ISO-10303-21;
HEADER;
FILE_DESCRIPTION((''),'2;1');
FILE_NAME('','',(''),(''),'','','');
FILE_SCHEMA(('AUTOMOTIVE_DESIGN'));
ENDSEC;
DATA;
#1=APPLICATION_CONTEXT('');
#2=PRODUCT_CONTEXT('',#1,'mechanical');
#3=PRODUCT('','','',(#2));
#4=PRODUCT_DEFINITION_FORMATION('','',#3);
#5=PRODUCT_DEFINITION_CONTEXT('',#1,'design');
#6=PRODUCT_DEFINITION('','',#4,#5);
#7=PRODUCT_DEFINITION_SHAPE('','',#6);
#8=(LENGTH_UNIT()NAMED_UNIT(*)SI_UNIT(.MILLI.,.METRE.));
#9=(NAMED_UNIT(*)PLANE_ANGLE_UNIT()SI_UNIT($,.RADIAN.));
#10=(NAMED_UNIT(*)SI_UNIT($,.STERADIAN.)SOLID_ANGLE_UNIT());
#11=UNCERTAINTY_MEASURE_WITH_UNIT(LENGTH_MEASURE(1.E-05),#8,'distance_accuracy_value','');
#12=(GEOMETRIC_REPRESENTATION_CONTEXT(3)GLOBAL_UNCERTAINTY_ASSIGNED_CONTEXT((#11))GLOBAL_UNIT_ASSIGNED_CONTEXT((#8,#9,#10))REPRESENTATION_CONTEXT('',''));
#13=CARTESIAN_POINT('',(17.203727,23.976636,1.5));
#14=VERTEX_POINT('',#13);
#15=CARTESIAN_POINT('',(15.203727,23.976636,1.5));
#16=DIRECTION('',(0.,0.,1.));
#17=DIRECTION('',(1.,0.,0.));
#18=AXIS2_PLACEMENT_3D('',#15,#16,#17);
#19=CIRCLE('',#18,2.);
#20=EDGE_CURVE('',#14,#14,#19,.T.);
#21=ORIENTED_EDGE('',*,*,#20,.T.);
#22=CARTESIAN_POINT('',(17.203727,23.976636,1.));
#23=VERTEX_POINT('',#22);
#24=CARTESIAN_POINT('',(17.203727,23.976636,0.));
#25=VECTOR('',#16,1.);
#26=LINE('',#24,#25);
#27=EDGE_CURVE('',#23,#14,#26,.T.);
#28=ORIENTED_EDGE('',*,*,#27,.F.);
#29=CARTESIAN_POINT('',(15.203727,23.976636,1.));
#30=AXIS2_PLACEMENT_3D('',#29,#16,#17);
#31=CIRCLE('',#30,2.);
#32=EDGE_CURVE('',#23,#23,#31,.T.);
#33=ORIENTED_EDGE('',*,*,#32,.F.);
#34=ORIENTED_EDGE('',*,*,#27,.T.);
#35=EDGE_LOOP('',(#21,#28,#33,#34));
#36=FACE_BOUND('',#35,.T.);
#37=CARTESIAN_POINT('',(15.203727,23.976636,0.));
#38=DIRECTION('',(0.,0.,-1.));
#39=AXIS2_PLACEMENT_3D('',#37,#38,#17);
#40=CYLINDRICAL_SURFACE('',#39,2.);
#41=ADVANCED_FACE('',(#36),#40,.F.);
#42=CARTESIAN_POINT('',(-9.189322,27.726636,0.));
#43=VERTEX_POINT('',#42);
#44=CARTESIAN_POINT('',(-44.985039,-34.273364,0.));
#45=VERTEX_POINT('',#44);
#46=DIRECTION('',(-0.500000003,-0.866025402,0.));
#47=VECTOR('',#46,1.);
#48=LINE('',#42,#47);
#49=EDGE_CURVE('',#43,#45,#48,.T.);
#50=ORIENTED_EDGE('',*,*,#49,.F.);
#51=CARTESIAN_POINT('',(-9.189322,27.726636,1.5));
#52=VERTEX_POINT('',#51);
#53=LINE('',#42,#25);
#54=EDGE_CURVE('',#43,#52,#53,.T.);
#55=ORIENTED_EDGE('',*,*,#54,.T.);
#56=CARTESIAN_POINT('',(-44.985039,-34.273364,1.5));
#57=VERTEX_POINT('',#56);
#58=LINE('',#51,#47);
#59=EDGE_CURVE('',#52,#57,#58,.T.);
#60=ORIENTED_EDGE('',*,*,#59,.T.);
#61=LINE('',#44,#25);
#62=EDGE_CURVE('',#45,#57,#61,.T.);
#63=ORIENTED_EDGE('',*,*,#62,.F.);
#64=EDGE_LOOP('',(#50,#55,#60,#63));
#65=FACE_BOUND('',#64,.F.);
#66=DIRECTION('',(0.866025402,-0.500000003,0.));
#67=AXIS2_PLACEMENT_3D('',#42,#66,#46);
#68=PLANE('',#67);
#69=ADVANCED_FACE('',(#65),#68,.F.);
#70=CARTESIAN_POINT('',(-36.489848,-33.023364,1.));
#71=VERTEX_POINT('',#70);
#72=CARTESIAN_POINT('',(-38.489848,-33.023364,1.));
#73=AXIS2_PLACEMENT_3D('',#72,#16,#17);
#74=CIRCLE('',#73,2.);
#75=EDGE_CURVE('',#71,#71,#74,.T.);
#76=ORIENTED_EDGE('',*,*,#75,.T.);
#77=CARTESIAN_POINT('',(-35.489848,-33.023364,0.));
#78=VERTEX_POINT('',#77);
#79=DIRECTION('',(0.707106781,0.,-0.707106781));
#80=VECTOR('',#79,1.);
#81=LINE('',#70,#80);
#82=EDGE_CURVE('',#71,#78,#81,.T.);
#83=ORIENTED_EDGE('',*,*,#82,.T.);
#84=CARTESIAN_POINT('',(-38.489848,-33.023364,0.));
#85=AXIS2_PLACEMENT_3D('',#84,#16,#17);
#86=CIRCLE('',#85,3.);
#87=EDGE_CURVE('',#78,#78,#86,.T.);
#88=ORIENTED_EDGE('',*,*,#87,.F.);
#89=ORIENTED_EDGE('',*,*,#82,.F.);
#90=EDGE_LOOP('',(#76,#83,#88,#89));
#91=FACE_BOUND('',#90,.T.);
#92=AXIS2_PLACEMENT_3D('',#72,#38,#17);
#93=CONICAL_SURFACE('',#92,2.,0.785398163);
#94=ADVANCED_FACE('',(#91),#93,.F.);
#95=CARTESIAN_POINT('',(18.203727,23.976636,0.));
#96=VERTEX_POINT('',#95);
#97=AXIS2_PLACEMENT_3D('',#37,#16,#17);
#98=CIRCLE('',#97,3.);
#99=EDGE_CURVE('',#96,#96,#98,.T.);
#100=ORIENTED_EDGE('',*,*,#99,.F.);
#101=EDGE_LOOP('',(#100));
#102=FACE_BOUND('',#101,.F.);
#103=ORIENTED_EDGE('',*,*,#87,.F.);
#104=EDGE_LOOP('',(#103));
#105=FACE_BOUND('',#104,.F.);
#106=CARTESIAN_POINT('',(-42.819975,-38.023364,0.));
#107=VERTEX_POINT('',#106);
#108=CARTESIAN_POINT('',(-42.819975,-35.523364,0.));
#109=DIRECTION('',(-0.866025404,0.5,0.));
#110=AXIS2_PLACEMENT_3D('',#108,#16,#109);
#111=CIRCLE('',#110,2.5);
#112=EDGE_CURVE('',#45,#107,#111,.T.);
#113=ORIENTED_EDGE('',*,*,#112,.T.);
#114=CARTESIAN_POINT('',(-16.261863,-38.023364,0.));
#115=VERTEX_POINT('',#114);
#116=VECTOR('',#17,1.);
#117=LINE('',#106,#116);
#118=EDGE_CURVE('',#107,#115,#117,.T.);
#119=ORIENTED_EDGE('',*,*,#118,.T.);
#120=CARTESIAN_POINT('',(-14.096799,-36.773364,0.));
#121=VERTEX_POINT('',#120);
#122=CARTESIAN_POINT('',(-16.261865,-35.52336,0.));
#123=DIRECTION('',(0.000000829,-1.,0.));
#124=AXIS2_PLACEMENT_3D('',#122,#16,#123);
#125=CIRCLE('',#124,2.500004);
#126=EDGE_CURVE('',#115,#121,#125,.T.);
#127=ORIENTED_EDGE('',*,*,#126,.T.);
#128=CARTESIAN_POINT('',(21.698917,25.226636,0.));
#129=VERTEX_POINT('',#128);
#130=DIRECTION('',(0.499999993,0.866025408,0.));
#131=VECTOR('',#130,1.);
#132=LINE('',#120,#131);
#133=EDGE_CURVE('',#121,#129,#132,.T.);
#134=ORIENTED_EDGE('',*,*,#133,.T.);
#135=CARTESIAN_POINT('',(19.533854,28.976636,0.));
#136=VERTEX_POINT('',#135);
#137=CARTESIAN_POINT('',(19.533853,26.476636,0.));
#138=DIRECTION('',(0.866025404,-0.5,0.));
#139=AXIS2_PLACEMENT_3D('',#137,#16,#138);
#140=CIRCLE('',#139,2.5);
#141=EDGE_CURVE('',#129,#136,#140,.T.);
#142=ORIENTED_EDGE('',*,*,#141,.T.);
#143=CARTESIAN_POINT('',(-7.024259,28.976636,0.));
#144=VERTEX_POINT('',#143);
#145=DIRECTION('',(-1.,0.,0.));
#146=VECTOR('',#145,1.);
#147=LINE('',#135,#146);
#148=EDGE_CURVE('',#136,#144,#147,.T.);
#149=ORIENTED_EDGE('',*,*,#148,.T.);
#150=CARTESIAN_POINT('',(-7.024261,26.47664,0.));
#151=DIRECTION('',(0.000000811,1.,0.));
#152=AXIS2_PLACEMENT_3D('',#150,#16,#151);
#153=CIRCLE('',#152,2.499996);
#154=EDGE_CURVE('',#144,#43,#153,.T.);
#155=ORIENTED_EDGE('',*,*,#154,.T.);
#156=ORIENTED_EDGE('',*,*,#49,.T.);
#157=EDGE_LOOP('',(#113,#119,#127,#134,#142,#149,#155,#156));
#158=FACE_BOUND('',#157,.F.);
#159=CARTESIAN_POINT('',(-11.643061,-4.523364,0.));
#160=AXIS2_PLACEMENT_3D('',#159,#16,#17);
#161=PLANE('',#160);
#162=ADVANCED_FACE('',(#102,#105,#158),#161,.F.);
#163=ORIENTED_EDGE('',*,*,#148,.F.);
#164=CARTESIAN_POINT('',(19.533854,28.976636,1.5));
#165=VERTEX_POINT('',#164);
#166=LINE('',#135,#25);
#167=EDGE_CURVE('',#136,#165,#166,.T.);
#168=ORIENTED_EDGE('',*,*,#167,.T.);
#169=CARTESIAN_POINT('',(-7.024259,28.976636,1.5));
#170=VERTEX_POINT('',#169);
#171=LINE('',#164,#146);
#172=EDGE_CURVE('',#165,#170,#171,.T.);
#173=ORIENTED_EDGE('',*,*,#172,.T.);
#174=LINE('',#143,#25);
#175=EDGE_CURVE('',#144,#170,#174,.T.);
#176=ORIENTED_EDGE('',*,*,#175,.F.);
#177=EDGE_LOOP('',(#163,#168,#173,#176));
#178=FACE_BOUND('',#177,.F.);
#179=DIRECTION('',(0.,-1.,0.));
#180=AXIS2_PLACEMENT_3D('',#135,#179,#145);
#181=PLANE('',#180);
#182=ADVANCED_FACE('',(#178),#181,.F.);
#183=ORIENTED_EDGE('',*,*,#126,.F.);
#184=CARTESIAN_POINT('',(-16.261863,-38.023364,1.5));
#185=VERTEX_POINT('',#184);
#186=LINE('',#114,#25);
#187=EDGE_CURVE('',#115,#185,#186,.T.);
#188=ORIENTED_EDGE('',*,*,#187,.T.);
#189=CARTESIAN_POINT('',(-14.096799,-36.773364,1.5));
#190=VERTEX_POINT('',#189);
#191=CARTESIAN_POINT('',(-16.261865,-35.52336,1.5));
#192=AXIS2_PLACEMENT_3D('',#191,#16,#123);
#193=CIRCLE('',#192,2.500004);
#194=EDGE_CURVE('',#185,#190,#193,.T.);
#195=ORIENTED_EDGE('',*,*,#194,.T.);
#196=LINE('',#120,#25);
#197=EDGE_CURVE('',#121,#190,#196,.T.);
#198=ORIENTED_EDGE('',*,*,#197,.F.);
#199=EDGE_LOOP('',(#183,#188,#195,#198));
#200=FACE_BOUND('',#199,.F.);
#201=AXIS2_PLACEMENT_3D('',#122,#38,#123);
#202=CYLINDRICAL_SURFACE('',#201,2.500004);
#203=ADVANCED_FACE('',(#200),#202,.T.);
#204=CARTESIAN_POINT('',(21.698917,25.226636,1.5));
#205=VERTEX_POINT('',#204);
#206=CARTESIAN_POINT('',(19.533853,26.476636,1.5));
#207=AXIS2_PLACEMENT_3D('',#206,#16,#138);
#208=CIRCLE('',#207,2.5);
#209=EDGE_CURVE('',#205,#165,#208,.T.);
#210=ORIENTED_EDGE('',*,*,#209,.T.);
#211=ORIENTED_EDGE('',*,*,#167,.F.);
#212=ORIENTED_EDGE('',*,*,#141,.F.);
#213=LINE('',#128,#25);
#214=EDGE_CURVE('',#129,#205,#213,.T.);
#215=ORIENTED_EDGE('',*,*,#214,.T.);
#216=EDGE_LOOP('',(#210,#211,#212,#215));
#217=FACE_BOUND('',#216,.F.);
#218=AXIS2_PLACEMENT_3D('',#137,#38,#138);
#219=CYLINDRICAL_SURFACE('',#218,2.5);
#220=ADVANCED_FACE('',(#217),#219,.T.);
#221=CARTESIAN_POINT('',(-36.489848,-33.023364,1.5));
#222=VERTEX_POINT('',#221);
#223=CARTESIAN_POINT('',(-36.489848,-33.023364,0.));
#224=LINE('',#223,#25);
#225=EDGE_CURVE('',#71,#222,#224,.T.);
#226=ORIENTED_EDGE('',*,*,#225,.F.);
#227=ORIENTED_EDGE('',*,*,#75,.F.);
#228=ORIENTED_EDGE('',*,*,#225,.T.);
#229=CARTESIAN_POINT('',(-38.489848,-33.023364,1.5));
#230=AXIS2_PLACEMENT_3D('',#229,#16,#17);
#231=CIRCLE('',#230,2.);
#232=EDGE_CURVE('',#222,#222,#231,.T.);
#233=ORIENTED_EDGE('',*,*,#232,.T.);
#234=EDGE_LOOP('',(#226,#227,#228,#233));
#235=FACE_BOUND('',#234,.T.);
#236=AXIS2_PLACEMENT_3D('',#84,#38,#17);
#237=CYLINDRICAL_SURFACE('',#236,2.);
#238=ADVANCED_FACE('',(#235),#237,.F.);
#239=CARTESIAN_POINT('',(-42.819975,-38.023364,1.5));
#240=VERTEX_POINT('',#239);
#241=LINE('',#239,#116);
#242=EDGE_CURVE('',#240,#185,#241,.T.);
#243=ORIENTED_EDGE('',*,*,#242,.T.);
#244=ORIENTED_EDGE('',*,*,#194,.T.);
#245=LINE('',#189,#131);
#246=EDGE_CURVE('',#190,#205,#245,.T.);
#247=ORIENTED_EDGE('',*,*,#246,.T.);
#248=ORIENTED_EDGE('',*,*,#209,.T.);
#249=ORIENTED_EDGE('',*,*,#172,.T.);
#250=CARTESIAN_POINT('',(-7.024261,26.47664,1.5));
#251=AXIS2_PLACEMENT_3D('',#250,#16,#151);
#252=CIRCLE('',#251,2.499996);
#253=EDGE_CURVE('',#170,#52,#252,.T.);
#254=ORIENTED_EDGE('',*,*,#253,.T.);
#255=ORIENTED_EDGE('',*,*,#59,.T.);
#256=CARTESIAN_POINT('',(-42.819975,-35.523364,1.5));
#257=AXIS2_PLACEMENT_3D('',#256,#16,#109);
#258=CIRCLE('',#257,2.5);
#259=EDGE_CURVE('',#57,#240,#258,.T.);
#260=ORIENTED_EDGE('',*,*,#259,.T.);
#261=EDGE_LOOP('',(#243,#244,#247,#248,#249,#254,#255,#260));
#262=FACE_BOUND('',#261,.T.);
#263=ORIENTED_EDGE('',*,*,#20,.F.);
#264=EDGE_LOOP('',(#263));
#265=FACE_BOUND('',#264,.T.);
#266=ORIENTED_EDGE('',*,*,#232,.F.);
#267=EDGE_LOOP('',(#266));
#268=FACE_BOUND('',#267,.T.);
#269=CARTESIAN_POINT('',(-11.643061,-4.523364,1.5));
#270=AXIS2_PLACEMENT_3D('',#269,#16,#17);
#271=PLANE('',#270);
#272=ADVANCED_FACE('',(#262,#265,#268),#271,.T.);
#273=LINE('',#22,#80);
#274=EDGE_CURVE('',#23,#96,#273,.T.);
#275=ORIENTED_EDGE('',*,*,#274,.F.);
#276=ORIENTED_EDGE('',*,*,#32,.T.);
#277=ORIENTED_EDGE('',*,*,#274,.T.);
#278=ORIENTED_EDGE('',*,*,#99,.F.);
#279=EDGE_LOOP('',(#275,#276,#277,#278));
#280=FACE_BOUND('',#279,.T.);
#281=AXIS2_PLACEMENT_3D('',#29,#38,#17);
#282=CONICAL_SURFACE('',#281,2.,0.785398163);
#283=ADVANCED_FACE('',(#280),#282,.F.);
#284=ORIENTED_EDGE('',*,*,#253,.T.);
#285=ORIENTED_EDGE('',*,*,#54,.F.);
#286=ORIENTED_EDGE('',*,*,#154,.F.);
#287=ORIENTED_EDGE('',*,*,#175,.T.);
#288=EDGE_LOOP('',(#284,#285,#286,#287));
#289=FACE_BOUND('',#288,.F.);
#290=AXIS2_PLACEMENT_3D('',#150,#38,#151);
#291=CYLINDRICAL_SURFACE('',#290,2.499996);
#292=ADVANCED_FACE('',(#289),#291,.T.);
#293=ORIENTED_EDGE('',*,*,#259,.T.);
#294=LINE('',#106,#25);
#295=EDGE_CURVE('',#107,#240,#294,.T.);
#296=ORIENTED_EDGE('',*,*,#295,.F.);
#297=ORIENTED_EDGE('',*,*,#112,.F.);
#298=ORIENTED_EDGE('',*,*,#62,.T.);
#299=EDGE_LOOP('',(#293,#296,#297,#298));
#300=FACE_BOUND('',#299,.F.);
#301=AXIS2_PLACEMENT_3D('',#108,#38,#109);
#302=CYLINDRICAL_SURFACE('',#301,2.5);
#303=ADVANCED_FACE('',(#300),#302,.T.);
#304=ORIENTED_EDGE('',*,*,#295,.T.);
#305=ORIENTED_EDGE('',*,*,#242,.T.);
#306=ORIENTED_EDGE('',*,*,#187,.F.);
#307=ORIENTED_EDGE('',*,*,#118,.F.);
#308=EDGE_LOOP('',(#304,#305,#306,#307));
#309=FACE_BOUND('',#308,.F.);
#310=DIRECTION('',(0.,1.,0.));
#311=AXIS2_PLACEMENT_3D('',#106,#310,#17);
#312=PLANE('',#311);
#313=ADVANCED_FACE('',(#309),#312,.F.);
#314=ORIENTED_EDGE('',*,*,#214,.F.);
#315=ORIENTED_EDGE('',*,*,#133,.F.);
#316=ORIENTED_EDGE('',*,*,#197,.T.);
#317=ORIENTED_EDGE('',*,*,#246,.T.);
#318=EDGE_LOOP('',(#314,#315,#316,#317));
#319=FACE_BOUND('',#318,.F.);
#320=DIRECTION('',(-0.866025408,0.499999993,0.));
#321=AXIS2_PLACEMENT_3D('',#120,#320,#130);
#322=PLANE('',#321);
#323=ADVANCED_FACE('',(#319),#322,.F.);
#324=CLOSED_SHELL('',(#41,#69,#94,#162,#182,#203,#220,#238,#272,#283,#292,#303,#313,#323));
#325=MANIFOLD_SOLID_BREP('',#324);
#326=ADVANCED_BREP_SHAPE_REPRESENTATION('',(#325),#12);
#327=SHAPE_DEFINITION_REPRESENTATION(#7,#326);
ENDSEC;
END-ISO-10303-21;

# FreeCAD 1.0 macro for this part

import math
import FreeCAD as App
import Part
import Sketcher

V = App.Vector
Q = App.Units.Quantity


def edges_at(feature, points):
    """Names of the edges that pass closest to the given points."""
    edges = feature.Shape.Edges
    near = lambda p: min(range(len(edges)), key=lambda i: edges[i].distToShape(Part.Vertex(*p))[0])
    return sorted({f"Edge{near(p) + 1}" for p in points})

doc = App.newDocument("Part")
params = doc.addObject("Spreadsheet::Sheet", "Params")
for row, (alias, value) in enumerate([
    ("sketch1_diameter", "4 mm"),
    ("sketch1_radius", "2.5 mm"),
    ("pad1_length", "1.5 mm"),
    ("chamfer_size", "1 mm"),
], start=1):
    params.set(f"A{row}", alias)
    params.set(f"B{row}", "=" + value)
    params.setAlias(f"B{row}", alias)

body = doc.addObject("PartDesign::Body", "Body")

sketch1 = body.newObject("Sketcher::SketchObject", "Sketch")
sketch1.AttachmentSupport = (doc.getObject("XY_Plane"), [""])
sketch1.MapMode = "FlatFace"
sketch1.addGeometry([
    Part.LineSegment(V(-9.2, 27.7, 0), V(-45, -34.3, 0)),
    Part.ArcOfCircle(Part.Circle(V(-42.8, -35.5, 0), V(0, 0, 1), 2.5), math.radians(150), math.radians(270)),
    Part.LineSegment(V(-42.8, -38, 0), V(-16.3, -38, 0)),
    Part.ArcOfCircle(Part.Circle(V(-16.3, -35.5, 0), V(0, 0, 1), 2.5), math.radians(-90), math.radians(-30)),
    Part.LineSegment(V(-14.1, -36.8, 0), V(21.7, 25.2, 0)),
    Part.ArcOfCircle(Part.Circle(V(19.5, 26.5, 0), V(0, 0, 1), 2.5), math.radians(-30), math.radians(90)),
    Part.LineSegment(V(19.5, 29, 0), V(-7, 29, 0)),
    Part.ArcOfCircle(Part.Circle(V(-7, 26.5, 0), V(0, 0, 1), 2.5), math.radians(90), math.radians(150)),
    Part.Circle(V(-38.5, -33, 0), V(0, 0, 1), 2),
    Part.Circle(V(15.2, 24, 0), V(0, 0, 1), 2),
], False)
sketch1.addConstraint([
    Sketcher.Constraint("Tangent", 0, 2, 1, 1),
    Sketcher.Constraint("Tangent", 1, 2, 2, 1),
    Sketcher.Constraint("Tangent", 2, 2, 3, 1),
    Sketcher.Constraint("Tangent", 3, 2, 4, 1),
    Sketcher.Constraint("Tangent", 4, 2, 5, 1),
    Sketcher.Constraint("Tangent", 5, 2, 6, 1),
    Sketcher.Constraint("Tangent", 6, 2, 7, 1),
    Sketcher.Constraint("Tangent", 7, 2, 0, 1),
    Sketcher.Constraint("Horizontal", 2),
    Sketcher.Constraint("Horizontal", 6),
    Sketcher.Constraint("Equal", 1, 5),
    Sketcher.Constraint("Equal", 8, 9),
    Sketcher.Constraint("Parallel", 0, 4),
    Sketcher.Constraint("Equal", 2, 6),
    Sketcher.Constraint("Diameter", 8, 4.0),
    Sketcher.Constraint("Radius", 1, 2.5),
    Sketcher.Constraint("Angle", 0, Q("-120 deg")),
    Sketcher.Constraint("DistanceY", 1, 3, 5, 3, 62.0),
    Sketcher.Constraint("DistanceY", 3, 3, 7, 3, 62.0),
    Sketcher.Constraint("DistanceY", 8, 3, 9, 3, 57.0),
    Sketcher.Constraint("DistanceY", 1, 2, 8, 3, 5.0),
    Sketcher.Constraint("DistanceX", 2, 1, 2, 2, 26.558112),
    Sketcher.Constraint("DistanceX", 3, 2, -1, 1, 14.096799),
    Sketcher.Constraint("DistanceX", 8, 3, 5, 3, 58.023701),
    Sketcher.Constraint("DistanceY", 3, 3, -1, 1, 35.52336),
    Sketcher.Constraint("DistanceX", 7, 3, 9, 3, 22.227988),
])
sketch1.setExpression("Constraints[14]", "Params.sketch1_diameter")
sketch1.setExpression("Constraints[15]", "Params.sketch1_radius")
pad1 = body.newObject("PartDesign::Pad", "Pad")
pad1.Profile = sketch1
pad1.setExpression("Length", "Params.pad1_length")
doc.recompute()

chamfer = body.newObject("PartDesign::Chamfer", "Chamfer")
chamfer.Base = (pad1, edges_at(pad1, [(13.204, 23.977, 0), (-40.49, -33.023, 0)]))
chamfer.setExpression("Size", "Params.chamfer_size")

doc.recompute()
